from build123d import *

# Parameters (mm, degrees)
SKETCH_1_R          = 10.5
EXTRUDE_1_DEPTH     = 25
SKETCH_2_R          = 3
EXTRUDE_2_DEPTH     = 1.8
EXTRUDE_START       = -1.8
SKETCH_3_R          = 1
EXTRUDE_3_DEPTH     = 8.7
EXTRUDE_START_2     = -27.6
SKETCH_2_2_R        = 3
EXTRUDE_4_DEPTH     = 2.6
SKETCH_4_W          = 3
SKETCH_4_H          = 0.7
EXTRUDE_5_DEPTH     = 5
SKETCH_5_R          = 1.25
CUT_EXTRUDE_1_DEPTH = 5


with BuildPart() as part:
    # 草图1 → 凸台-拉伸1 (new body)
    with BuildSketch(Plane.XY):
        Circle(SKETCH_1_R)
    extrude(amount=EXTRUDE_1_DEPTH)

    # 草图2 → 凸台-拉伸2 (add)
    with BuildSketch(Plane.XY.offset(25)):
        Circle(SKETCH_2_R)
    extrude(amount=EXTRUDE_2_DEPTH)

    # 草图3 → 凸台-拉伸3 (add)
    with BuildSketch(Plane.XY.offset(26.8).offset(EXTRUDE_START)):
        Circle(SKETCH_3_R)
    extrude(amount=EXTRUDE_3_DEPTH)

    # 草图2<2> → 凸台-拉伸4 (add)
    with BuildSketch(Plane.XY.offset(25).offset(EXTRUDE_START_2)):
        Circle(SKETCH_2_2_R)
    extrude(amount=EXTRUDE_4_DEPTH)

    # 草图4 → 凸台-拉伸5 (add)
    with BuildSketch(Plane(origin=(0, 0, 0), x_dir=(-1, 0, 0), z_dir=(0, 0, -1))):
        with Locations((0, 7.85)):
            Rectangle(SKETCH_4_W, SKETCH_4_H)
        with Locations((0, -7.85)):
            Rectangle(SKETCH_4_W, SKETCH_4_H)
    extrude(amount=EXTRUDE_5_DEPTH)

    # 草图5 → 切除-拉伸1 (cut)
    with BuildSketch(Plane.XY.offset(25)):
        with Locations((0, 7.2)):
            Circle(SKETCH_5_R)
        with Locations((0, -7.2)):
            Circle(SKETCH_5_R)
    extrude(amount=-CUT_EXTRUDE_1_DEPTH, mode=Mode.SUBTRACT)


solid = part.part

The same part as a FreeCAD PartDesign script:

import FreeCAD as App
import Part
import Sketcher
from FreeCAD import Vector
Q = App.Units.Quantity


def add_polygon(sketch, points):
    """Adds a closed chain of lines whose ends are joined by coincident constraints."""
    first, n = sketch.GeometryCount, len(points)
    for a, b in zip(points, points[1:] + points[:1]):
        sketch.addGeometry(Part.LineSegment(App.Vector(*a, 0), App.Vector(*b, 0)), False)
    for i in range(n):
        sketch.addConstraint(Sketcher.Constraint("Coincident", first + i, 2, first + (i + 1) % n, 1))

doc = App.newDocument("Part")
body = doc.addObject("PartDesign::Body", "Body")

sketch1 = doc.addObject("Sketcher::SketchObject", "Sketch")
body.addObject(sketch1)
sketch1.AttachmentSupport = (doc.XY_Plane, [""])
sketch1.MapMode = "FlatFace"
sketch1.addGeometry(Part.Circle(Vector(0, 0, 0), Vector(0, 0, 1), 10), False)
sketch1.addConstraint([
    Sketcher.Constraint("Coincident", 0, 3, -1, 1),
    Sketcher.Constraint("Diameter", 0, Q("21 mm")),
])
pad1 = doc.addObject("PartDesign::Pad", "Pad")
body.addObject(pad1)
pad1.Profile = sketch1
pad1.Length = 25

sketch2 = doc.addObject("Sketcher::SketchObject", "Sketch001")
body.addObject(sketch2)
sketch2.AttachmentSupport = (doc.XY_Plane, [""])
sketch2.MapMode = "FlatFace"
sketch2.AttachmentOffset = App.Placement(Vector(0, 0, 25), App.Rotation())
sketch2.addGeometry(Part.Circle(Vector(0, 0, 0), Vector(0, 0, 1), 3), False)
sketch2.addConstraint([
    Sketcher.Constraint("Coincident", 0, 3, -1, 1),
    Sketcher.Constraint("Diameter", 0, Q("6 mm")),
])
pad2 = doc.addObject("PartDesign::Pad", "Pad001")
body.addObject(pad2)
pad2.Profile = sketch2
pad2.Length = 1.8

sketch3 = doc.addObject("Sketcher::SketchObject", "Sketch002")
body.addObject(sketch3)
sketch3.AttachmentSupport = (doc.XY_Plane, [""])
sketch3.MapMode = "FlatFace"
sketch3.AttachmentOffset = App.Placement(Vector(0, 0, 25), App.Rotation())
sketch3.addGeometry(Part.Circle(Vector(0, 0, 0), Vector(0, 0, 1), 1), False)
sketch3.addConstraint([
    Sketcher.Constraint("Coincident", 0, 3, -1, 1),
    Sketcher.Constraint("Diameter", 0, Q("2 mm")),
])
pad3 = doc.addObject("PartDesign::Pad", "Pad002")
body.addObject(pad3)
pad3.Profile = sketch3
pad3.Length = 8.7

sketch4 = doc.addObject("Sketcher::SketchObject", "Sketch003")
body.addObject(sketch4)
sketch4.AttachmentSupport = (doc.XY_Plane, [""])
sketch4.MapMode = "FlatFace"
sketch4.AttachmentOffset = App.Placement(Vector(0, 0, -2.6), App.Rotation())
sketch4.addGeometry(Part.Circle(Vector(0, 0, 0), Vector(0, 0, 1), 3), False)
sketch4.addConstraint([
    Sketcher.Constraint("Coincident", 0, 3, -1, 1),
    Sketcher.Constraint("Diameter", 0, Q("6 mm")),
])
pad4 = doc.addObject("PartDesign::Pad", "Pad003")
body.addObject(pad4)
pad4.Profile = sketch4
pad4.Length = 2.6

sketch5 = doc.addObject("Sketcher::SketchObject", "Sketch004")
body.addObject(sketch5)
sketch5.AttachmentSupport = (doc.XY_Plane, [""])
sketch5.MapMode = "FlatFace"
add_polygon(sketch5, [(1.5, 8.2), (1.5, 7.5), (-1.5, 7.5), (-1.5, 8.2)])
add_polygon(sketch5, [(1.5, -7.5), (1.5, -8.2), (-1.5, -8.2), (-1.5, -7.5)])
sketch5.addConstraint([
    Sketcher.Constraint("Vertical", 0),
    Sketcher.Constraint("Horizontal", 1),
    Sketcher.Constraint("Vertical", 2),
    Sketcher.Constraint("Horizontal", 3),
    Sketcher.Constraint("Vertical", 4),
    Sketcher.Constraint("Horizontal", 5),
    Sketcher.Constraint("Vertical", 6),
    Sketcher.Constraint("Horizontal", 7),
    Sketcher.Constraint("Symmetric", 2, 2, 4, 2, -1, 1),
    Sketcher.Constraint("Symmetric", 0, 2, 6, 2, -1, 1),
    Sketcher.Constraint("Vertical", 3, 2, 4, 2),
    Sketcher.Constraint("DistanceX", 1, 2, 1, 1, Q("3 mm")),
    Sketcher.Constraint("DistanceY", 0, 2, 0, 1, Q("0.7 mm")),
    Sketcher.Constraint("DistanceY", 6, 2, 1, 2, Q("15 mm")),
])
pad5 = doc.addObject("PartDesign::Pad", "Pad004")
body.addObject(pad5)
pad5.Profile = sketch5
pad5.Length = 5
pad5.Reversed = True

sketch6 = doc.addObject("Sketcher::SketchObject", "Sketch005")
body.addObject(sketch6)
sketch6.AttachmentSupport = (doc.XY_Plane, [""])
sketch6.MapMode = "FlatFace"
sketch6.AttachmentOffset = App.Placement(Vector(0, 0, 25), App.Rotation())
sketch6.addGeometry([
    Part.Circle(Vector(0, 7.2, 0), Vector(0, 0, 1), 1.2),
    Part.Circle(Vector(0, -7.2, 0), Vector(0, 0, 1), 1.2),
], False)
sketch6.addConstraint([
    Sketcher.Constraint("Equal", 0, 1),
    Sketcher.Constraint("Symmetric", 0, 3, 1, 3, -1, 1),
    Sketcher.Constraint("PointOnObject", 0, 3, -2),
    Sketcher.Constraint("Diameter", 0, Q("2.5 mm")),
    Sketcher.Constraint("DistanceY", -1, 1, 0, 3, Q("7.2 mm")),
])
pocket1 = doc.addObject("PartDesign::Pocket", "Pocket")
body.addObject(pocket1)
pocket1.Profile = sketch6
pocket1.Length = 5

doc.recompute()
